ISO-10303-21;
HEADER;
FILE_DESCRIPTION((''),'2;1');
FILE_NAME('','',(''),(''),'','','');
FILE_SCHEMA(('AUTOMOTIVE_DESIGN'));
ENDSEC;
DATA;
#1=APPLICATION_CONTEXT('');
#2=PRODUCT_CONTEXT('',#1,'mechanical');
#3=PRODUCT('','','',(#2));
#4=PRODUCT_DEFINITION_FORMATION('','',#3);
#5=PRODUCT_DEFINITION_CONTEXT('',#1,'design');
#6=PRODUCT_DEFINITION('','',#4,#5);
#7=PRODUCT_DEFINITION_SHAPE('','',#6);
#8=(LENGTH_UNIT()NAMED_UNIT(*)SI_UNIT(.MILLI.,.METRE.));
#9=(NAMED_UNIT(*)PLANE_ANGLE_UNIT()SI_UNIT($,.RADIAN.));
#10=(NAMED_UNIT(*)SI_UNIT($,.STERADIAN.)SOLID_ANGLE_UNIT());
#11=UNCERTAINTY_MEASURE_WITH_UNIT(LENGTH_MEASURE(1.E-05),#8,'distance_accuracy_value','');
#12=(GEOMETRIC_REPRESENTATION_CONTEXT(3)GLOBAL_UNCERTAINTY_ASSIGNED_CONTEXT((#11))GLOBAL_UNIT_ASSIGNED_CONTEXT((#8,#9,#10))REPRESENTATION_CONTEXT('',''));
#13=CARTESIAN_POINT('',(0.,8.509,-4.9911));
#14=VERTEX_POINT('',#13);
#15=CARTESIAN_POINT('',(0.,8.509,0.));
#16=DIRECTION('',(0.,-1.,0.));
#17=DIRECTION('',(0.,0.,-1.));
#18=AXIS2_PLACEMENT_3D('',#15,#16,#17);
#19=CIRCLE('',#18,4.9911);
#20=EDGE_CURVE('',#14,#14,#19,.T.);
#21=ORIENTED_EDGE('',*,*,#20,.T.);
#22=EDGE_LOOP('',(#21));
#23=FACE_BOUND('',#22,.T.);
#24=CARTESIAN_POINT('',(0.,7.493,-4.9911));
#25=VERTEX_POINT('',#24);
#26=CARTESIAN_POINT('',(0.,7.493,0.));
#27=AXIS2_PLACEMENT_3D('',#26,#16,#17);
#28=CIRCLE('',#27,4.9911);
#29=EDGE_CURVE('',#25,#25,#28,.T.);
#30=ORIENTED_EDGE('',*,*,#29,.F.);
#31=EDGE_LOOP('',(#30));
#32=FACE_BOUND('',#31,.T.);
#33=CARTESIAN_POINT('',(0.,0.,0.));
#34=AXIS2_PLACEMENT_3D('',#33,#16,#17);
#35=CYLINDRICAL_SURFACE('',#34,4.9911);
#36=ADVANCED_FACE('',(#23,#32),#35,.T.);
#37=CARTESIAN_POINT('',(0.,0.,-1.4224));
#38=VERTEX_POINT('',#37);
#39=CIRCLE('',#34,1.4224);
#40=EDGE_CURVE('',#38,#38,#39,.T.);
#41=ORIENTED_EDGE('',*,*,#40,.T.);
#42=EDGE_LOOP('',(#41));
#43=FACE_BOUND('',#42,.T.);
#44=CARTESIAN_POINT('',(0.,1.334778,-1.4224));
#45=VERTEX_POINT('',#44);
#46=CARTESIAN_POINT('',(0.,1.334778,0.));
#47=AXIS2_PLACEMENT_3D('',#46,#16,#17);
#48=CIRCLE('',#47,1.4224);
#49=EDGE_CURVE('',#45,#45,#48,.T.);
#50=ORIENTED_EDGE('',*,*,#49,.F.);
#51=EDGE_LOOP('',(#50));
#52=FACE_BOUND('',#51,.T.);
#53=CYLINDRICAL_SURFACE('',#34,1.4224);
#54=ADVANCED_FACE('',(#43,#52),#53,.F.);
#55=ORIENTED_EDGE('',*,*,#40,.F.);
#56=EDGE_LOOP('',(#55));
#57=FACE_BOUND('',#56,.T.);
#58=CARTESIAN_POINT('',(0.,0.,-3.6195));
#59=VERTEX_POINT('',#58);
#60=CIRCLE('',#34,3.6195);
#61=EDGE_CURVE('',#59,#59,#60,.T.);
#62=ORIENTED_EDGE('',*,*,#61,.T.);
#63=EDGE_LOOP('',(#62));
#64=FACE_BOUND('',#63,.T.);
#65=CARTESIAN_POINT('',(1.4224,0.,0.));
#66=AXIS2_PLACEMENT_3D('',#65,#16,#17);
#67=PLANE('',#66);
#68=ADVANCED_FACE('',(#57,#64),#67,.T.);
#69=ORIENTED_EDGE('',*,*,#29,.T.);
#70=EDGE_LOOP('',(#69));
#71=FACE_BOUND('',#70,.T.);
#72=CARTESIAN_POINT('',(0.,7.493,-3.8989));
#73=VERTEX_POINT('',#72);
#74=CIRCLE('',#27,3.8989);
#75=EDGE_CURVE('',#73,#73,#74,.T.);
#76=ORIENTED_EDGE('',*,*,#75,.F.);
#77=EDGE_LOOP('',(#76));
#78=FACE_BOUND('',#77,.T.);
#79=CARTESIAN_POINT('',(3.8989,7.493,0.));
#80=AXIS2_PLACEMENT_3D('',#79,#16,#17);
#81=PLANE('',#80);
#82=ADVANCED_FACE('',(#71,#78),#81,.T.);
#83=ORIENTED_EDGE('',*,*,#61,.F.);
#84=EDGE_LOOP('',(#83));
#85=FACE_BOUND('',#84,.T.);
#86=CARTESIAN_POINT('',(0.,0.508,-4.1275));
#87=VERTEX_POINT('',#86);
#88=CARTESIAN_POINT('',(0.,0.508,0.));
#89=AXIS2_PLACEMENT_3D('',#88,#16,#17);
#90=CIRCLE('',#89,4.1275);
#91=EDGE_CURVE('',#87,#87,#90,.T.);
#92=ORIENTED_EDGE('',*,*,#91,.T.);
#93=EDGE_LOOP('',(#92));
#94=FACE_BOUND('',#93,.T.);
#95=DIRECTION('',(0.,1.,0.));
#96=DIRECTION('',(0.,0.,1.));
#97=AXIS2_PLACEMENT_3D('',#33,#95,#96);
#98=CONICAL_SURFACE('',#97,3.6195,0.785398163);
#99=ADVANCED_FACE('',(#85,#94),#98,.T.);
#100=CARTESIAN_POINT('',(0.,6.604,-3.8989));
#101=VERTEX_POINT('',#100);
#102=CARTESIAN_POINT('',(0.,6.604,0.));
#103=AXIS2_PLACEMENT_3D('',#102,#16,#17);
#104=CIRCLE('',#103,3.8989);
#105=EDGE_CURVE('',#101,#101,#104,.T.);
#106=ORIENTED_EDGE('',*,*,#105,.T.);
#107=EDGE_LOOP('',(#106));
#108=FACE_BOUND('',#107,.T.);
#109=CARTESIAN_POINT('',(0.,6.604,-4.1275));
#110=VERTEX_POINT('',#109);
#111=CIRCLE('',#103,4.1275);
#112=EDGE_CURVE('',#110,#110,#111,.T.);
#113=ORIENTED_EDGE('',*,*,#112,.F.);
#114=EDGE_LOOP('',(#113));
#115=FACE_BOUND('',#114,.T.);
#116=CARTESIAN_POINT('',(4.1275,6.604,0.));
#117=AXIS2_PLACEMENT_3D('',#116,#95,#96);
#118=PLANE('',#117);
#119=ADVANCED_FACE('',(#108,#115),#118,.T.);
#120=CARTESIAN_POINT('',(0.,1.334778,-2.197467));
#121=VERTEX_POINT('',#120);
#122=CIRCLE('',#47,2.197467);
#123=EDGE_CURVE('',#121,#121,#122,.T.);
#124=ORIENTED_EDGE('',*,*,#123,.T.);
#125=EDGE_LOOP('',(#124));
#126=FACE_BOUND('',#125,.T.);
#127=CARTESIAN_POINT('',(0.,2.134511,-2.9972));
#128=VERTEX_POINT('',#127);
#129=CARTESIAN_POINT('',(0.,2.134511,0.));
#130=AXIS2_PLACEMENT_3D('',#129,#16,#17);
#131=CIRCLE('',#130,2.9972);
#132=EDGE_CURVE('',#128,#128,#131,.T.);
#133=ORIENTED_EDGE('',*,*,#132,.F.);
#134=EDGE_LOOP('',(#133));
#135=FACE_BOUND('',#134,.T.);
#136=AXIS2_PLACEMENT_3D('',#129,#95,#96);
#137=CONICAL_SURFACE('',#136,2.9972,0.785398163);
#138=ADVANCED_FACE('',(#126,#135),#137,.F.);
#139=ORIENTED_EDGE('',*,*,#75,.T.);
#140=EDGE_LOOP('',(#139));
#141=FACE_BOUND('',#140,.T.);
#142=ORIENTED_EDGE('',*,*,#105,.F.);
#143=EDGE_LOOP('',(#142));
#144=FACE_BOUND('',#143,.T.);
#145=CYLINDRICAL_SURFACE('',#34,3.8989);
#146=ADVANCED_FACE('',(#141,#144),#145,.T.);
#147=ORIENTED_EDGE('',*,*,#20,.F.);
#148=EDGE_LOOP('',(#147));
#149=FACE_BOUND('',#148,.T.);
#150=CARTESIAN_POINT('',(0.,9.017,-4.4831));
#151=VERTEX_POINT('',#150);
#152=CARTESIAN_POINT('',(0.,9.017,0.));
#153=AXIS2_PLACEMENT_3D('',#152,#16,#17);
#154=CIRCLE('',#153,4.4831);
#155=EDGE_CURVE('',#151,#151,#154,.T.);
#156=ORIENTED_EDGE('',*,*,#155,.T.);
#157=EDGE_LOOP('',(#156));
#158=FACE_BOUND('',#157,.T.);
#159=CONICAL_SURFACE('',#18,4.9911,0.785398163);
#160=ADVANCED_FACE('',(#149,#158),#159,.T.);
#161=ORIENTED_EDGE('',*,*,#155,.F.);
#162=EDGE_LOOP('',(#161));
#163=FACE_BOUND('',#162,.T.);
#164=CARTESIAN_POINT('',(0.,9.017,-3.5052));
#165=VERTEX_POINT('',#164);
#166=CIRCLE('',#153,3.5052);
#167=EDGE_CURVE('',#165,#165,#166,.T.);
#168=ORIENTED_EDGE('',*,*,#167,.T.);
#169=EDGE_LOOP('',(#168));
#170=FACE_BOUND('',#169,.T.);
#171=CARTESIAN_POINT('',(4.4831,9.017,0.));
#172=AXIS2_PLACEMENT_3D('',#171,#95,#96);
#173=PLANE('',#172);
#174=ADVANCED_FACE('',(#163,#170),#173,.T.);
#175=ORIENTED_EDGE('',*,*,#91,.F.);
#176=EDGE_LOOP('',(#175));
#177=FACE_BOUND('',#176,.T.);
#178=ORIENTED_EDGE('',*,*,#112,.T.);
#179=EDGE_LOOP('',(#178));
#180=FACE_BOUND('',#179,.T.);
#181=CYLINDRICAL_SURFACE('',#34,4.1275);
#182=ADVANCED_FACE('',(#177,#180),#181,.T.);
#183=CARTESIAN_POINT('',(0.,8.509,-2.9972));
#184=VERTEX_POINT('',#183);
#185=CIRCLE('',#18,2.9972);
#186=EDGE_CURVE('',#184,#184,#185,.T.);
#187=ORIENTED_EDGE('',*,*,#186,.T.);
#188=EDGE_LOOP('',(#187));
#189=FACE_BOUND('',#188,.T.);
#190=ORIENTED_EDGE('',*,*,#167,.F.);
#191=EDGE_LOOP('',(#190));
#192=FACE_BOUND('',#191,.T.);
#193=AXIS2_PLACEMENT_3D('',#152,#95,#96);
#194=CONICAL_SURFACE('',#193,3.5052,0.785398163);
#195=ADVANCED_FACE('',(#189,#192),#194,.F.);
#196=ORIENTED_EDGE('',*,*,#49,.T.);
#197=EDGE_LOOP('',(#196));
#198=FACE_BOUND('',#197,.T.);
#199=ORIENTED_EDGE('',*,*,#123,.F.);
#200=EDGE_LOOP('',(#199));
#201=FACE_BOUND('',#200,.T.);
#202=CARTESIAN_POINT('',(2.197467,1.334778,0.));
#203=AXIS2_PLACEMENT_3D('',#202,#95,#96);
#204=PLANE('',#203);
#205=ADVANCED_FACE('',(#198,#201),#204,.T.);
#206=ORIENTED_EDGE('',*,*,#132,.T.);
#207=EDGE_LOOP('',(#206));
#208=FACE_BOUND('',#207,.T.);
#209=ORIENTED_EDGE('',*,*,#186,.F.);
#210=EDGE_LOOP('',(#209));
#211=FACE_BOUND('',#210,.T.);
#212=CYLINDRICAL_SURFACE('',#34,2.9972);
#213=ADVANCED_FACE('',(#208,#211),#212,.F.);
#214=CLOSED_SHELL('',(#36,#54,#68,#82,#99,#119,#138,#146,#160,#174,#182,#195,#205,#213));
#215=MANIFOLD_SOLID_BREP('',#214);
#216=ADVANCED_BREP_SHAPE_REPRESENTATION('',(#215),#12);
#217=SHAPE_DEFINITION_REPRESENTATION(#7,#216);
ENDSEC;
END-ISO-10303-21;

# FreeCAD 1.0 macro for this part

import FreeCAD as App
import Part
import Sketcher
Q = App.Units.Quantity


def add_polygon(sketch, points):
    """Adds a closed chain of lines whose ends are joined by coincident constraints."""
    first, n = sketch.GeometryCount, len(points)
    for a, b in zip(points, points[1:] + points[:1]):
        sketch.addGeometry(Part.LineSegment(App.Vector(*a, 0), App.Vector(*b, 0)), False)
    for i in range(n):
        sketch.addConstraint(Sketcher.Constraint("Coincident", first + i, 2, first + (i + 1) % n, 1))

doc = App.newDocument("Part")
body = doc.addObject("PartDesign::Body", "Body")

sketch1 = body.newObject("Sketcher::SketchObject", "Sketch")
sketch1.AttachmentSupport = (doc.getObject("XY_Plane"), [""])
sketch1.MapMode = "FlatFace"
add_polygon(sketch1, [(1.42, 0), (3.62, 0), (4.13, 0.51), (4.13, 6.6), (3.9, 6.6), (3.9, 7.49), (4.99, 7.49), (4.99, 8.51), (4.48, 9.02), (3.51, 9.02), (3, 8.51), (3, 2.13), (2.2, 1.33), (1.42, 1.33)])
sketch1.addConstraint([
    Sketcher.Constraint("Horizontal", 0),
    Sketcher.Constraint("Vertical", 2),
    Sketcher.Constraint("Horizontal", 3),
    Sketcher.Constraint("Vertical", 4),
    Sketcher.Constraint("Horizontal", 5),
    Sketcher.Constraint("Vertical", 6),
    Sketcher.Constraint("Horizontal", 8),
    Sketcher.Constraint("Vertical", 10),
    Sketcher.Constraint("Horizontal", 12),
    Sketcher.Constraint("Vertical", 13),
    Sketcher.Constraint("PointOnObject", 0, 2, -1),
    Sketcher.Constraint("Perpendicular", 1, 7),
    Sketcher.Constraint("Perpendicular", 7, 9),
    Sketcher.Constraint("Parallel", 9, 11),
    Sketcher.Constraint("Horizontal", 6, 2, 9, 2),
    Sketcher.Constraint("Equal", 1, 7),
    Sketcher.Constraint("Equal", 7, 9),
    Sketcher.Constraint("DistanceY", 2, 1, 2, 2, Q("0.24 in")),
    Sketcher.Constraint("DistanceY", 6, 1, 6, 2, Q("0.04 in")),
    Sketcher.Constraint("DistanceX", 3, 2, 3, 1, Q("0.009 in")),
    Sketcher.Constraint("DistanceX", 5, 1, 5, 2, Q("0.043 in")),
    Sketcher.Constraint("DistanceY", 4, 1, 4, 2, Q("0.035 in")),
    Sketcher.Constraint("DistanceY", -1, 1, 1, 2, Q("0.02 in")),
    Sketcher.Constraint("DistanceX", 0, 1, 0, 2, Q("0.0865 in")),
    Sketcher.Constraint("DistanceX", 8, 2, 8, 1, Q("0.0385 in")),
    Sketcher.Constraint("DistanceX", -1, 1, 8, 2, Q("0.138 in")),
    Sketcher.Constraint("DistanceY", 10, 2, 10, 1, 6.374489),
    Sketcher.Constraint("DistanceY", 13, 2, 13, 1, 1.334778),
])
revolution = body.newObject("PartDesign::Revolution", "Revolution")
revolution.Profile = sketch1
revolution.ReferenceAxis = (sketch1, ["V_Axis"])
revolution.Angle = 360

doc.recompute()
